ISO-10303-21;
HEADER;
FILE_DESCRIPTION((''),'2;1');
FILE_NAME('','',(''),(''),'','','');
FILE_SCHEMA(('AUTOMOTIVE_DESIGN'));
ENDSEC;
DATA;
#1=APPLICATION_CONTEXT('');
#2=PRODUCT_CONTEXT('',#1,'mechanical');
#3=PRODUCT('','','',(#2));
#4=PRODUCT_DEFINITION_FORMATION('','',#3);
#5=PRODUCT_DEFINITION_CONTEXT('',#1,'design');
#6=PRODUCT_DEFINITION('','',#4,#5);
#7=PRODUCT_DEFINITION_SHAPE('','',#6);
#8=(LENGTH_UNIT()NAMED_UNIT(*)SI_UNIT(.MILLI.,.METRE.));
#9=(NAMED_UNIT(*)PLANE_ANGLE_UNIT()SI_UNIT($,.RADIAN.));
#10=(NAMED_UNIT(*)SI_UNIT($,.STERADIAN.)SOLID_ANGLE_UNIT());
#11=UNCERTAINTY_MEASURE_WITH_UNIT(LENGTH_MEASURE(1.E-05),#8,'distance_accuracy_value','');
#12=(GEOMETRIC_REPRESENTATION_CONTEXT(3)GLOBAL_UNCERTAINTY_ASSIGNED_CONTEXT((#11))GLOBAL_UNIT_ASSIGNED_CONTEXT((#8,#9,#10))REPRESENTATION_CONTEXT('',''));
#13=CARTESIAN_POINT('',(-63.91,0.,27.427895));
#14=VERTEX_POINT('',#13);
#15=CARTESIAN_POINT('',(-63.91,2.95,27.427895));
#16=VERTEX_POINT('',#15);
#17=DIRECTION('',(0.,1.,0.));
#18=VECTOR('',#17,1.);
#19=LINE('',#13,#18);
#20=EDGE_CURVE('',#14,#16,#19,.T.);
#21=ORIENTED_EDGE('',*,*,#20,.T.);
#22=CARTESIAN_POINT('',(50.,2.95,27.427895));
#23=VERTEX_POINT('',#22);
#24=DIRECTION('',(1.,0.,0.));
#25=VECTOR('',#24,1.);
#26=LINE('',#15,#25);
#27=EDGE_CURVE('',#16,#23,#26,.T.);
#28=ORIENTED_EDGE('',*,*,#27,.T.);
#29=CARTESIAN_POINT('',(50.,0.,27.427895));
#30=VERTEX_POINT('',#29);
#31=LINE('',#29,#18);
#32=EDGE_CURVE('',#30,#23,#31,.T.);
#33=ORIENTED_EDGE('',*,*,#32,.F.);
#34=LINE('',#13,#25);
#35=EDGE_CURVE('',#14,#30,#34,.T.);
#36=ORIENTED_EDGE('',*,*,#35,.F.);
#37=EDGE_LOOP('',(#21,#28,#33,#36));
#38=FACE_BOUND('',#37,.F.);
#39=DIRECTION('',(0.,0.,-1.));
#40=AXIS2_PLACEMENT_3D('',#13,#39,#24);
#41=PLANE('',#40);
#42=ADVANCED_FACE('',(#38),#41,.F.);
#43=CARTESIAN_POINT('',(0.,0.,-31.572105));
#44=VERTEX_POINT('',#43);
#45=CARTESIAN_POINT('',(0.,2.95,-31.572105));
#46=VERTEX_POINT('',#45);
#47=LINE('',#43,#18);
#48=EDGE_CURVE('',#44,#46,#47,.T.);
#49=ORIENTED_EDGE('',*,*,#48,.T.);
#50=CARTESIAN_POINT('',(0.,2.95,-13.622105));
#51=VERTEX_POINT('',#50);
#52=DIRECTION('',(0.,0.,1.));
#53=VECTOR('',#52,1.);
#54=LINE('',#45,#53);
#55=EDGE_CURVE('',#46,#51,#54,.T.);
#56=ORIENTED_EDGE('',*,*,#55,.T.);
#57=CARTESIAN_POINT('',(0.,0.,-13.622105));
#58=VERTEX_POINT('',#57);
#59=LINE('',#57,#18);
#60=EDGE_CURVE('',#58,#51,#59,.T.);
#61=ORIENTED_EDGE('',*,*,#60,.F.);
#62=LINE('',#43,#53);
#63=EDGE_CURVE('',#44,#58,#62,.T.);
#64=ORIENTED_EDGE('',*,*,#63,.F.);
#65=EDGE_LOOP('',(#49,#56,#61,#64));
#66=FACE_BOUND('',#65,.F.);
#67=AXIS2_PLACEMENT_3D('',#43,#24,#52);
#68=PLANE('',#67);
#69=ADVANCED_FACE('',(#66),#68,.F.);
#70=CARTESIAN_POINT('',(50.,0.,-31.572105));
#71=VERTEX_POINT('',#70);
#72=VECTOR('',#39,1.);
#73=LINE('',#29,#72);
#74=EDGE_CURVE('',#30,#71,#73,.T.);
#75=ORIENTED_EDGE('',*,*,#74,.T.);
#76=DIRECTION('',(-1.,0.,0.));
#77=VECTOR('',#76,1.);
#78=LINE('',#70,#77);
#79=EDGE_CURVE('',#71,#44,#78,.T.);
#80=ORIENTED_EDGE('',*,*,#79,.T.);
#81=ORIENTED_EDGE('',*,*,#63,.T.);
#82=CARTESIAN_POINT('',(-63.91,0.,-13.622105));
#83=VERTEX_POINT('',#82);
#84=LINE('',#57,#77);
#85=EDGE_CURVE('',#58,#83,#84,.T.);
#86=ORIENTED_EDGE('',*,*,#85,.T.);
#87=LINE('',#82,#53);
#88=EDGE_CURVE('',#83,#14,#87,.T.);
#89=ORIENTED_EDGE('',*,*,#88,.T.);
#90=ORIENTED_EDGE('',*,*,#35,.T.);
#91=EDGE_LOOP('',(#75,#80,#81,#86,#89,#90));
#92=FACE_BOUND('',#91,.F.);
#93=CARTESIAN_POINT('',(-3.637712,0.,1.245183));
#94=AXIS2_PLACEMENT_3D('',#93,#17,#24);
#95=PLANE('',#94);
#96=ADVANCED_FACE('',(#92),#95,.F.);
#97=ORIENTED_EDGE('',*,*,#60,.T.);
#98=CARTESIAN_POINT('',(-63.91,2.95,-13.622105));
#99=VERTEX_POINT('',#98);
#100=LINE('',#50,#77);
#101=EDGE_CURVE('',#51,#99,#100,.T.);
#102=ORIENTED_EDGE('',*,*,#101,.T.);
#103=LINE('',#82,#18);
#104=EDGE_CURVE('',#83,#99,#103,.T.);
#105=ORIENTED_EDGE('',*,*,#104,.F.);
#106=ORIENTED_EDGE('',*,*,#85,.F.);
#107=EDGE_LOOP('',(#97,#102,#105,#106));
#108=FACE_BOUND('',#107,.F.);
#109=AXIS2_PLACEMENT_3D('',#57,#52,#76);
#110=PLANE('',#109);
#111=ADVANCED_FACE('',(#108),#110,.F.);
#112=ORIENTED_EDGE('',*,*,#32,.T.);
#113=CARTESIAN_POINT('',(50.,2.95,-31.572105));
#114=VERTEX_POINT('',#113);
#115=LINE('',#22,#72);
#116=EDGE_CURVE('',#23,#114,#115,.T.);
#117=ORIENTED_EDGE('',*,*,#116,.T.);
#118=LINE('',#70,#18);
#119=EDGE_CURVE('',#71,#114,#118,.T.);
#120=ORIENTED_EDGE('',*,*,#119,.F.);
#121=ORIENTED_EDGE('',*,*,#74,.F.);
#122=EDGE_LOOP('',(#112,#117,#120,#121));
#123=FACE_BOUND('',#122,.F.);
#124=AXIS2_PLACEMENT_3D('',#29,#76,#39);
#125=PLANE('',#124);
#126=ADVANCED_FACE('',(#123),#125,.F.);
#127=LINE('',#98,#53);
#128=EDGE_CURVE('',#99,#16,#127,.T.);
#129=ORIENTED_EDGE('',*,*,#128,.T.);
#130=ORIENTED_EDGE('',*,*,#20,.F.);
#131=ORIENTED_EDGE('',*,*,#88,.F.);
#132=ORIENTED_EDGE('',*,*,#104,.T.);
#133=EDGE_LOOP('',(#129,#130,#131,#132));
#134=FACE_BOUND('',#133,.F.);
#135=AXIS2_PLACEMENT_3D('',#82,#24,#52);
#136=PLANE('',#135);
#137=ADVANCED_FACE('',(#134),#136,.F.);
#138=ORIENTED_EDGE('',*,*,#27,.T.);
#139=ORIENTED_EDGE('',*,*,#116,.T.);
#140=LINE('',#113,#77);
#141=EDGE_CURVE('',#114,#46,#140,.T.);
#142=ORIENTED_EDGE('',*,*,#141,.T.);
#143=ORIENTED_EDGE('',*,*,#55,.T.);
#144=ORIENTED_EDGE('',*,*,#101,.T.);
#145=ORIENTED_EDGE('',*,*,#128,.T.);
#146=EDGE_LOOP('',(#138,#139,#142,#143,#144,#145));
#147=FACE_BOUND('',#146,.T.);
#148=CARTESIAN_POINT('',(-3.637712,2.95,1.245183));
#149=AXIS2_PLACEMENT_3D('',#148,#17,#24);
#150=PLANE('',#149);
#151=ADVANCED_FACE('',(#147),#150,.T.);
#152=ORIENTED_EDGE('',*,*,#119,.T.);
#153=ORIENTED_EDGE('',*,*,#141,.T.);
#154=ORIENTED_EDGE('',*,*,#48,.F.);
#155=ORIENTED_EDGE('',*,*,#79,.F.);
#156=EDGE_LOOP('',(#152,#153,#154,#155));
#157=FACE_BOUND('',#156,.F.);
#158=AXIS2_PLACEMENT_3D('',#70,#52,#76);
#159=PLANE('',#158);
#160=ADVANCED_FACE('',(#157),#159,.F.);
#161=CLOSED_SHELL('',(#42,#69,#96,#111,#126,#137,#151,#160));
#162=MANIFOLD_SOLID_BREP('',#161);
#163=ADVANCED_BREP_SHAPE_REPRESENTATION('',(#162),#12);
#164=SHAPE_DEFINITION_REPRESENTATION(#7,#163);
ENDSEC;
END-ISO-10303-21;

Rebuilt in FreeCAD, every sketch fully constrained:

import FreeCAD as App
import Part
import Sketcher
from FreeCAD import Vector


def add_polygon(sketch, points):
    """Adds a closed chain of lines whose ends are joined by coincident constraints."""
    first, n = sketch.GeometryCount, len(points)
    for a, b in zip(points, points[1:] + points[:1]):
        sketch.addGeometry(Part.LineSegment(App.Vector(*a, 0), App.Vector(*b, 0)), False)
    for i in range(n):
        sketch.addConstraint(Sketcher.Constraint("Coincident", first + i, 2, first + (i + 1) % n, 1))

doc = App.newDocument("Part")
body = doc.addObject("PartDesign::Body", "Body")

# Sketch on XZ plane
sketch1 = body.newObject("Sketcher::SketchObject", "Sketch")
sketch1.AttachmentSupport = (doc.getObject("XZ_Plane"), [""])
sketch1.MapMode = "FlatFace"
add_polygon(sketch1, [(-64, -14), (-64, 27), (50, 27), (50, -32), (0, -32), (0, -14)])  # lines 0-5
sketch1.addConstraint([
    Sketcher.Constraint("Vertical", 0),
    Sketcher.Constraint("Horizontal", 1),
    Sketcher.Constraint("Vertical", 2),
    Sketcher.Constraint("Horizontal", 3),
    Sketcher.Constraint("Vertical", 4),
    Sketcher.Constraint("Horizontal", 5),
    Sketcher.Constraint("PointOnObject", 3, 2, -2),
    Sketcher.Constraint("DistanceX", 3, 2, 3, 1, 50.0),
    Sketcher.Constraint("DistanceY", 2, 2, 2, 1, 59.0),
    Sketcher.Constraint("DistanceX", 1, 1, 1, 2, 113.91),
    Sketcher.Constraint("DistanceY", 0, 1, 0, 2, 41.05),
    Sketcher.Constraint("DistanceY", -1, 1, 0, 2, 27.427895),
])
pad1 = body.newObject("PartDesign::Pad", "Pad")
pad1.Profile = sketch1
pad1.Length = 2.95
pad1.Reversed = True

doc.recompute()
